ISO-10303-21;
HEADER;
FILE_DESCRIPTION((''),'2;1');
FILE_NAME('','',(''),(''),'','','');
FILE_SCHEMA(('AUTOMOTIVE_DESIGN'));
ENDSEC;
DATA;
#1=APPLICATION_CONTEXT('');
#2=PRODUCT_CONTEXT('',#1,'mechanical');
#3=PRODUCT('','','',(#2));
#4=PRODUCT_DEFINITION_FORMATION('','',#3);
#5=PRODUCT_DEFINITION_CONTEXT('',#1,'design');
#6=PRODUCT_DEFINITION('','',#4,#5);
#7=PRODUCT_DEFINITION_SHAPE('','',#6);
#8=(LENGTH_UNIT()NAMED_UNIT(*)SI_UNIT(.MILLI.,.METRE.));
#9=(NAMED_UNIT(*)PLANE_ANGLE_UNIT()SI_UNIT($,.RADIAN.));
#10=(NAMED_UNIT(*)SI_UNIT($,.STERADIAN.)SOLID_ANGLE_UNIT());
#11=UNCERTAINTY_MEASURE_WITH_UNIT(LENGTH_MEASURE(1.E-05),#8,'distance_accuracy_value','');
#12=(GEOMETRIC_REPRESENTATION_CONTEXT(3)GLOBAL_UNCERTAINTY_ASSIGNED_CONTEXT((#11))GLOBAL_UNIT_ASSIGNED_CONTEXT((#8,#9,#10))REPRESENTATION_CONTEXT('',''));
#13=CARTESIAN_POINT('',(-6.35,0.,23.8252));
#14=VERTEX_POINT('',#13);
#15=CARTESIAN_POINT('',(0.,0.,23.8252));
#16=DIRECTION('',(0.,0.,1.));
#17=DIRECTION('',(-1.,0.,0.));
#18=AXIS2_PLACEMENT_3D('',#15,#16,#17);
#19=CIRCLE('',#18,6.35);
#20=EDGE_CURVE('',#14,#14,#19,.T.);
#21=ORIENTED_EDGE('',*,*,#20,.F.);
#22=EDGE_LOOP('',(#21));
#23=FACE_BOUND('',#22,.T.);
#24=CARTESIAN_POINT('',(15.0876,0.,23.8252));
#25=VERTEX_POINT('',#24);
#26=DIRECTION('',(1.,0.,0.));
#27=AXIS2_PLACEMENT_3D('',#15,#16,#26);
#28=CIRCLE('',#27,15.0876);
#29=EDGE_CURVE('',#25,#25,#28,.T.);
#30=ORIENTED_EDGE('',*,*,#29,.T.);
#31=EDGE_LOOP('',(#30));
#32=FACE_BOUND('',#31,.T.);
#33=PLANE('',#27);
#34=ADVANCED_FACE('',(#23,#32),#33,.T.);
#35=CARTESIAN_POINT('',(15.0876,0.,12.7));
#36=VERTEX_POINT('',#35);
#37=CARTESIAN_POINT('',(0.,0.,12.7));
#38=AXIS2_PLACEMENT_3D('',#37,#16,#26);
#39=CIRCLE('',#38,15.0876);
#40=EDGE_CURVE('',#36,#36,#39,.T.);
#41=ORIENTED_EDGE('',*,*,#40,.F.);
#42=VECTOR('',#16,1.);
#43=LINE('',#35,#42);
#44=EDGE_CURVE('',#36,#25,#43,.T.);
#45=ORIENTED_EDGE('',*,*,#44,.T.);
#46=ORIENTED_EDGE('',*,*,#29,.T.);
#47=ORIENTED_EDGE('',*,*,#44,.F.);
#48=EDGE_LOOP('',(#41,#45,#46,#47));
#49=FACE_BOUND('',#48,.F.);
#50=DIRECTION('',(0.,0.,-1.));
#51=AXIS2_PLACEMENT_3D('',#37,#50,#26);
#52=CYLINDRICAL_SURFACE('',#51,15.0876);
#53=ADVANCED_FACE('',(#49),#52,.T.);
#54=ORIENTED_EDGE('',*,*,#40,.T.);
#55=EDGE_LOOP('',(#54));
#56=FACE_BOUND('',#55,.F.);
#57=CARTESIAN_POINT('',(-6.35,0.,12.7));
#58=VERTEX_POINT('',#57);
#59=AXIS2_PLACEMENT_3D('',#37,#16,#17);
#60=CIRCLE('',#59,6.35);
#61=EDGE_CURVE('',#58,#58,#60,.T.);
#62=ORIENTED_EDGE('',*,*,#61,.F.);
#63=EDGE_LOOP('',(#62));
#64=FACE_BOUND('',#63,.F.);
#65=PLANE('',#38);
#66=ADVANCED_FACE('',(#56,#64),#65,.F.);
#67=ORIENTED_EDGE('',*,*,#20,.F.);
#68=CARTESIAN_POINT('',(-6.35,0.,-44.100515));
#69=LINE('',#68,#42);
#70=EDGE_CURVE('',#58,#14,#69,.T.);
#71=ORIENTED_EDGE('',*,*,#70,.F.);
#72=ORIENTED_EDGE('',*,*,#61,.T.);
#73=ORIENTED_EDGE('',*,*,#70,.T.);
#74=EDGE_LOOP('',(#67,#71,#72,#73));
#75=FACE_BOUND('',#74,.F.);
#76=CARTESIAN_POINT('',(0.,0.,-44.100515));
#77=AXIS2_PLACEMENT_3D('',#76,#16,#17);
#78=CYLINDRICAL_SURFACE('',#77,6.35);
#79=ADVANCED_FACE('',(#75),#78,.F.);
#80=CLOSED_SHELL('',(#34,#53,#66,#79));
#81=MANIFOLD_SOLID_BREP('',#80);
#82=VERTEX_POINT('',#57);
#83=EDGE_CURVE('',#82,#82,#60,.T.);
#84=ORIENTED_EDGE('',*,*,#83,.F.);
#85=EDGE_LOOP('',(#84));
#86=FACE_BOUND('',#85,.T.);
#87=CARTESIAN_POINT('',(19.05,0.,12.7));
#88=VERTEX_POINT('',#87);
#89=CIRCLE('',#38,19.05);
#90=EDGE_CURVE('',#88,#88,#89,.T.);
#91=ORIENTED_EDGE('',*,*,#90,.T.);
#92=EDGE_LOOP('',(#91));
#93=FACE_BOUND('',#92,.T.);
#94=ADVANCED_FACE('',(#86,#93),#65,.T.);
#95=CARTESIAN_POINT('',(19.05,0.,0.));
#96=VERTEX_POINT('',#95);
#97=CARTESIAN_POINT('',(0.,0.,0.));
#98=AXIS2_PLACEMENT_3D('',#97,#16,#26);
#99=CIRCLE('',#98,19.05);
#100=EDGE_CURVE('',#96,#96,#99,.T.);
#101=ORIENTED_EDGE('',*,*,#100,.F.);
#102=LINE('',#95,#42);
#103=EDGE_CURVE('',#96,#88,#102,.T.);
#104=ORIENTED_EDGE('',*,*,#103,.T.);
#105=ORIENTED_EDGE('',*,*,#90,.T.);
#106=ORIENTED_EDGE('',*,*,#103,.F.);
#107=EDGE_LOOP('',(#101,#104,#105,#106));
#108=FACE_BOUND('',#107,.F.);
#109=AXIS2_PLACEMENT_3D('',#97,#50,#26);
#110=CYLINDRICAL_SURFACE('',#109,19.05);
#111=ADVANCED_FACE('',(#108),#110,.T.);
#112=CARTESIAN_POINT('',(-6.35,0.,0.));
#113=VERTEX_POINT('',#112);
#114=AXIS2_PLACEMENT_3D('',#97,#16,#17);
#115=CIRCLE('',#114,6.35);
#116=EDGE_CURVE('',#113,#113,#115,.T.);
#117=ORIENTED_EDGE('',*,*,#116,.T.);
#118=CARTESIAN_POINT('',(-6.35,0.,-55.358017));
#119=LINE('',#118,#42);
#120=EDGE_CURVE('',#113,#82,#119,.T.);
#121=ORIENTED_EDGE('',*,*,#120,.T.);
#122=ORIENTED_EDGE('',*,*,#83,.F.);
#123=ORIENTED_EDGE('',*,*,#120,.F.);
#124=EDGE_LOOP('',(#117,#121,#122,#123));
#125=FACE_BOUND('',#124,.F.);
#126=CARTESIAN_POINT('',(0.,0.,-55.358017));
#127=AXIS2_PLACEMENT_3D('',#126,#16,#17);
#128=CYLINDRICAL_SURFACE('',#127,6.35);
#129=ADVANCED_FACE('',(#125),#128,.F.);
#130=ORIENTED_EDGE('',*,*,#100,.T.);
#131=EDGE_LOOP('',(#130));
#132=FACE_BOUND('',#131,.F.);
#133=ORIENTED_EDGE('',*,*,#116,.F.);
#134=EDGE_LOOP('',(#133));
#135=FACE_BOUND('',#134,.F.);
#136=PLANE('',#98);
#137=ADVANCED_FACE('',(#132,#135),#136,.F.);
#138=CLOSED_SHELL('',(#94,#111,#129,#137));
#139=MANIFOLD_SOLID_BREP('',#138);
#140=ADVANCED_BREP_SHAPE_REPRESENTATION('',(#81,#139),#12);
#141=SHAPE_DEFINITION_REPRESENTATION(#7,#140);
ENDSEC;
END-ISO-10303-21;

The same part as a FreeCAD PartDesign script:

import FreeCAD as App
import Part
import Sketcher
from FreeCAD import Vector
Q = App.Units.Quantity

doc = App.newDocument("Part")
body = doc.addObject("PartDesign::Body", "Body")

# Sketch on XY plane
sketch1 = body.newObject("Sketcher::SketchObject", "Sketch")
sketch1.AttachmentSupport = (doc.getObject("XY_Plane"), [""])
sketch1.MapMode = "FlatFace"
sketch1.addGeometry(Part.Circle(Vector(0, 0, 0), Vector(0, 0, 1), 19.05), False)
sketch1.addConstraint([
    Sketcher.Constraint("Coincident", 0, 3, -1, 1),
    Sketcher.Constraint("Diameter", 0, Q("1.5 in")),
])
pad1 = body.newObject("PartDesign::Pad", "Pad")
pad1.Profile = sketch1
pad1.Length = Q("0.5 in")

# Sketch on XY plane
sketch2 = body.newObject("Sketcher::SketchObject", "Sketch001")
sketch2.AttachmentSupport = (doc.getObject("XY_Plane"), [""])
sketch2.MapMode = "FlatFace"
sketch2.addGeometry(Part.Circle(Vector(0, 0, 0), Vector(0, 0, 1), 6.35), False)
sketch2.addConstraint([
    Sketcher.Constraint("Coincident", 0, 3, -1, 1),
    Sketcher.Constraint("Diameter", 0, Q("0.5 in")),
])
doc.recompute()
hole = body.newObject("PartDesign::Hole", "Hole")
hole.Profile = sketch2
hole.ThreadType = "None"
hole.Diameter = Q("0.5 in")
hole.DepthType = "ThroughAll"
hole.Reversed = True
body2 = doc.addObject("PartDesign::Body", "Body001")

# Sketch on XY plane
sketch3 = body2.newObject("Sketcher::SketchObject", "Sketch002")
sketch3.AttachmentSupport = (doc.getObject("XY_Plane001"), [""])
sketch3.MapMode = "FlatFace"
sketch3.AttachmentOffset = App.Placement(Vector(0, 0, 0.5 * 25.4), App.Rotation())
sketch3.addGeometry(Part.Circle(Vector(0, 0, 0), Vector(0, 0, 1), 15.0876), False)
sketch3.addConstraint([
    Sketcher.Constraint("Coincident", 0, 3, -1, 1),
    Sketcher.Constraint("Diameter", 0, Q("1.188 in")),
])
pad2 = body2.newObject("PartDesign::Pad", "Pad001")
pad2.Profile = sketch3
pad2.Length = Q("0.438 in")

# Sketch on XY plane
sketch4 = body2.newObject("Sketcher::SketchObject", "Sketch003")
sketch4.AttachmentSupport = (doc.getObject("XY_Plane001"), [""])
sketch4.MapMode = "FlatFace"
sketch4.addGeometry(Part.Circle(Vector(0, 0, 0), Vector(0, 0, 1), 6.35), False)
sketch4.addConstraint([
    Sketcher.Constraint("Coincident", 0, 3, -1, 1),
    Sketcher.Constraint("Diameter", 0, Q("0.5 in")),
])
doc.recompute()
hole2 = body2.newObject("PartDesign::Hole", "Hole001")
hole2.Profile = sketch4
hole2.ThreadType = "None"
hole2.Diameter = Q("0.5 in")
hole2.DepthType = "ThroughAll"
hole2.Reversed = True

doc.recompute()
